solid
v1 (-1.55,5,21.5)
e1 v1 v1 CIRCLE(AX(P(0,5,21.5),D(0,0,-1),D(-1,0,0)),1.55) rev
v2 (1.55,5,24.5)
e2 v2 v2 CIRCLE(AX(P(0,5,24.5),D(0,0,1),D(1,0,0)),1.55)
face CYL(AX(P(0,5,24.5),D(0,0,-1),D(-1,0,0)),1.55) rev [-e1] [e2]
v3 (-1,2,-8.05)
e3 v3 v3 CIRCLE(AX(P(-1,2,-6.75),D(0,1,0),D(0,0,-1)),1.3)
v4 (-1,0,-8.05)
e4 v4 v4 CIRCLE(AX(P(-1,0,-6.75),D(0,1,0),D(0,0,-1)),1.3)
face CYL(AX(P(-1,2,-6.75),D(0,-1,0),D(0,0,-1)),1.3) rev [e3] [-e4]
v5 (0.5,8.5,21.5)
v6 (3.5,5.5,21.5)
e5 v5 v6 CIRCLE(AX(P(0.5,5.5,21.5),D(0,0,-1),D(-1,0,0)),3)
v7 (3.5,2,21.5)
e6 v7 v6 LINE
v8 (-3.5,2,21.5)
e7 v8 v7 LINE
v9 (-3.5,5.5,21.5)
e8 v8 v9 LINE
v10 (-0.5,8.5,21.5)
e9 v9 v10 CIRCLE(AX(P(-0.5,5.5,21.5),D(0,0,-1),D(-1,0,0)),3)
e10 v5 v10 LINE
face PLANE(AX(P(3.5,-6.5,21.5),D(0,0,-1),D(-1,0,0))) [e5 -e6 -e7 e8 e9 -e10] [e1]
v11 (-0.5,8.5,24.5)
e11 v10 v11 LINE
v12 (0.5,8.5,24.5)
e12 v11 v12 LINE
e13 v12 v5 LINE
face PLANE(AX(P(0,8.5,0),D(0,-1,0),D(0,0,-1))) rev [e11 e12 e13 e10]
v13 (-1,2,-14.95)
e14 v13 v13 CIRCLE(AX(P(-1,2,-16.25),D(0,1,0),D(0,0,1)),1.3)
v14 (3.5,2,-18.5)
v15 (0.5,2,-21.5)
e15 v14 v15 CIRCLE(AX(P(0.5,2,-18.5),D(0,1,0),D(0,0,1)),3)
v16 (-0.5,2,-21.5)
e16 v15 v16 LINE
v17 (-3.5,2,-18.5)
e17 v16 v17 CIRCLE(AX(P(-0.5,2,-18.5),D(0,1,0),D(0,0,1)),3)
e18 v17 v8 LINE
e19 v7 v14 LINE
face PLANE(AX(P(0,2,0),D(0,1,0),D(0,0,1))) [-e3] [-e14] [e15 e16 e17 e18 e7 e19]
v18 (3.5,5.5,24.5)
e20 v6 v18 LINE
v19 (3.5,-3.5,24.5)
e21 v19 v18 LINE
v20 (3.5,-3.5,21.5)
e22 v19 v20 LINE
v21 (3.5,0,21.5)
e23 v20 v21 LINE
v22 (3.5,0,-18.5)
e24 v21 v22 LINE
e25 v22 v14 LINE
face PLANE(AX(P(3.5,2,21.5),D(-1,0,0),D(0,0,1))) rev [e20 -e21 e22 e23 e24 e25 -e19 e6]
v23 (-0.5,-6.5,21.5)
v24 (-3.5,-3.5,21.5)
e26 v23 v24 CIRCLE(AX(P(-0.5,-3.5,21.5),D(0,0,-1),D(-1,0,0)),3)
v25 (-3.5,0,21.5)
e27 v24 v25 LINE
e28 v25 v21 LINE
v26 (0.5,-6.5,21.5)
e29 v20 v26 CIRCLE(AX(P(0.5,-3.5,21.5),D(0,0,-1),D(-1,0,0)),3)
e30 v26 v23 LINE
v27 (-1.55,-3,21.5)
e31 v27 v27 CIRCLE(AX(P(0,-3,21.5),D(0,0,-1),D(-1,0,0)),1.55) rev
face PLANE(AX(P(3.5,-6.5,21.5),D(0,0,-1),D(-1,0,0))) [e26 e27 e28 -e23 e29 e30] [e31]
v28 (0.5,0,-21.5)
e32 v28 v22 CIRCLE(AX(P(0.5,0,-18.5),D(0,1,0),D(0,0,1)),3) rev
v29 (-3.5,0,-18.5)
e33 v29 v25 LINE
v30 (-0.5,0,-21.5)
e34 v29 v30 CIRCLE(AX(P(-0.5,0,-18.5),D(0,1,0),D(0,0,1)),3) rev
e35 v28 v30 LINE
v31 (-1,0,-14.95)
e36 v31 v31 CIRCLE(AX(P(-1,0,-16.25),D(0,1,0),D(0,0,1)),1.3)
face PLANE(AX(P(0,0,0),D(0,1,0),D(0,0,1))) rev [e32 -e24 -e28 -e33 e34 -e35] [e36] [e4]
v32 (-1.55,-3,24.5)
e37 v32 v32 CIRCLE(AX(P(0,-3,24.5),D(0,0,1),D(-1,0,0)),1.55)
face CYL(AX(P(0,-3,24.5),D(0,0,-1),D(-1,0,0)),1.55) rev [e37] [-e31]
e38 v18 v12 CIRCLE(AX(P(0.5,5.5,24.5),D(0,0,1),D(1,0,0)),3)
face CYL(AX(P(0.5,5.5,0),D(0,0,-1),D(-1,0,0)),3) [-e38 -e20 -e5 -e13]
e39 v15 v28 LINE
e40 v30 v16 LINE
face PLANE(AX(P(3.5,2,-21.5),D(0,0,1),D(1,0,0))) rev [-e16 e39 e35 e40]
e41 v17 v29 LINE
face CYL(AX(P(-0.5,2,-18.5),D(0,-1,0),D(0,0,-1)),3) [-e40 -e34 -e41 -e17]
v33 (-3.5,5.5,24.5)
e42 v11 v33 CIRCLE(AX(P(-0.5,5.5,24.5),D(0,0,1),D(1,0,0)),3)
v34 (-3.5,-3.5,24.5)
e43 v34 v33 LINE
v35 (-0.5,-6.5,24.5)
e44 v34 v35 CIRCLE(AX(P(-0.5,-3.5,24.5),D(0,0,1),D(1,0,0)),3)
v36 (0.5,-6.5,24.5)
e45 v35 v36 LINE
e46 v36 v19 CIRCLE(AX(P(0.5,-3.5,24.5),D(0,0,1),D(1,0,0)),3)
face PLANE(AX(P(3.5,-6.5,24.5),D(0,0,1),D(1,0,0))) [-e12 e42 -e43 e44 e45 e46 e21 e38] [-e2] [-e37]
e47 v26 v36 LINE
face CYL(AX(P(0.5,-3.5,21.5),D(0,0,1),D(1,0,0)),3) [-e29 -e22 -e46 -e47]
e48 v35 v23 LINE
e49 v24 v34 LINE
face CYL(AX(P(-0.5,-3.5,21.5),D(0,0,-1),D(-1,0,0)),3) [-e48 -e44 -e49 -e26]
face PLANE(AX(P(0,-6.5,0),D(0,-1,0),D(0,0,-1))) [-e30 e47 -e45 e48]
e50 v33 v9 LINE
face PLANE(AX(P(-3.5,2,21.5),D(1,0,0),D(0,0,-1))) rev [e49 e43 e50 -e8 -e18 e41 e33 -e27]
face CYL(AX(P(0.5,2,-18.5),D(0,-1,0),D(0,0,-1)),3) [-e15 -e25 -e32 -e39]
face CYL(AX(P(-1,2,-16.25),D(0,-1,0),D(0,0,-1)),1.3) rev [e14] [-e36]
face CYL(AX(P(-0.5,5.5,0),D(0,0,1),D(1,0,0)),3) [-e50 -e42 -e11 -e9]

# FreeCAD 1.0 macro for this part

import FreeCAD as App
import Part
import Sketcher
from FreeCAD import Vector


def edges_at(feature, points):
    """Names of the edges that pass closest to the given points."""
    edges = feature.Shape.Edges
    near = lambda p: min(range(len(edges)), key=lambda i: edges[i].distToShape(Part.Vertex(*p))[0])
    return sorted({f"Edge{near(p) + 1}" for p in points})

doc = App.newDocument("Part")
params = doc.addObject("Spreadsheet::Sheet", "Params")
for row, (alias, value) in enumerate([
    ("sketch1_diameter", "2.6 mm"),
    ("sketch1_width", "7 mm"),
    ("sketch1_height", "43 mm"),
    ("pad1_length", "2 mm"),
    ("sketch2_width", "7 mm"),
    ("sketch2_height", "3 mm"),
    ("pad2_length", "8.5 mm"),
    ("pad2_length2", "6.5 mm"),
    ("sketch3_diameter", "3.1 mm"),
    ("fillet_radius", "3 mm"),
    ("fillet2_radius", "3 mm"),
], start=1):
    params.set(f"A{row}", alias)
    params.set(f"B{row}", "=" + value)
    params.setAlias(f"B{row}", alias)

body = doc.addObject("PartDesign::Body", "Body")

sketch1 = body.newObject("Sketcher::SketchObject", "Sketch")
sketch1.AttachmentSupport = (doc.getObject("XZ_Plane"), [""])
sketch1.MapMode = "FlatFace"
sketch1.addGeometry(Part.LineSegment(Vector(-3.5, -21.5, 0), Vector(-3.5, 21.5, 0)), False)
sketch1.addGeometry(Part.LineSegment(Vector(-3.5, 21.5, 0), Vector(3.5, 21.5, 0)), False)
sketch1.addGeometry(Part.LineSegment(Vector(3.5, 21.5, 0), Vector(3.5, -21.5, 0)), False)
sketch1.addGeometry(Part.LineSegment(Vector(3.5, -21.5, 0), Vector(-3.5, -21.5, 0)), False)
sketch1.addGeometry(Part.Circle(Vector(-1, -6.8, 0), Vector(0, 0, 1), 1.3), False)
sketch1.addGeometry(Part.Circle(Vector(-1, -16.2, 0), Vector(0, 0, 1), 1.3), False)
sketch1.addConstraint(Sketcher.Constraint("Coincident", 0, 2, 1, 1))
sketch1.addConstraint(Sketcher.Constraint("Coincident", 1, 2, 2, 1))
sketch1.addConstraint(Sketcher.Constraint("Coincident", 2, 2, 3, 1))
sketch1.addConstraint(Sketcher.Constraint("Coincident", 3, 2, 0, 1))
sketch1.addConstraint(Sketcher.Constraint("Vertical", 0))
sketch1.addConstraint(Sketcher.Constraint("Horizontal", 1))
sketch1.addConstraint(Sketcher.Constraint("Vertical", 2))
sketch1.addConstraint(Sketcher.Constraint("Horizontal", 3))
sketch1.addConstraint(Sketcher.Constraint("Equal", 4, 5))
sketch1.addConstraint(Sketcher.Constraint("Symmetric", 0, 2, 2, 2, -1, 1))
sketch1.addConstraint(Sketcher.Constraint("Vertical", 4, 3, 5, 3))
sketch1.addConstraint(Sketcher.Constraint("Diameter", 4, 2.6))
sketch1.addConstraint(Sketcher.Constraint("DistanceX", 1, 1, 1, 2, 7.0))
sketch1.addConstraint(Sketcher.Constraint("DistanceY", 0, 1, 0, 2, 43.0))
sketch1.addConstraint(Sketcher.Constraint("DistanceX", 4, 3, -1, 1, 1.0))
sketch1.addConstraint(Sketcher.Constraint("DistanceY", 5, 3, 4, 3, 9.5))
sketch1.addConstraint(Sketcher.Constraint("DistanceY", 4, 3, -1, 1, 6.75))
sketch1.setExpression("Constraints[11]", "Params.sketch1_diameter")
sketch1.setExpression("Constraints[12]", "Params.sketch1_width")
sketch1.setExpression("Constraints[13]", "Params.sketch1_height")
pad1 = body.newObject("PartDesign::Pad", "Pad")
pad1.Profile = sketch1
pad1.setExpression("Length", "Params.pad1_length")
pad1.Reversed = True

sketch2 = body.newObject("Sketcher::SketchObject", "Sketch001")
sketch2.AttachmentSupport = (doc.getObject("XZ_Plane"), [""])
sketch2.MapMode = "FlatFace"
sketch2.addGeometry(Part.LineSegment(Vector(-3.5, 21.5, 0), Vector(-3.5, 24.5, 0)), False)
sketch2.addGeometry(Part.LineSegment(Vector(-3.5, 24.5, 0), Vector(3.5, 24.5, 0)), False)
sketch2.addGeometry(Part.LineSegment(Vector(3.5, 24.5, 0), Vector(3.5, 21.5, 0)), False)
sketch2.addGeometry(Part.LineSegment(Vector(3.5, 21.5, 0), Vector(-3.5, 21.5, 0)), False)
sketch2.addConstraint(Sketcher.Constraint("Coincident", 0, 2, 1, 1))
sketch2.addConstraint(Sketcher.Constraint("Coincident", 1, 2, 2, 1))
sketch2.addConstraint(Sketcher.Constraint("Coincident", 2, 2, 3, 1))
sketch2.addConstraint(Sketcher.Constraint("Coincident", 3, 2, 0, 1))
sketch2.addConstraint(Sketcher.Constraint("Vertical", 0))
sketch2.addConstraint(Sketcher.Constraint("Horizontal", 1))
sketch2.addConstraint(Sketcher.Constraint("Vertical", 2))
sketch2.addConstraint(Sketcher.Constraint("Horizontal", 3))
sketch2.addConstraint(Sketcher.Constraint("DistanceX", 1, 1, 1, 2, 7.0))
sketch2.addConstraint(Sketcher.Constraint("DistanceY", 0, 1, 0, 2, 3.0))
sketch2.addConstraint(Sketcher.Constraint("DistanceX", 0, 2, -1, 1, 3.5))
sketch2.addConstraint(Sketcher.Constraint("DistanceY", -1, 1, 0, 2, 24.5))
sketch2.setExpression("Constraints[8]", "Params.sketch2_width")
sketch2.setExpression("Constraints[9]", "Params.sketch2_height")
pad2 = body.newObject("PartDesign::Pad", "Pad001")
pad2.Profile = sketch2
pad2.Type = "TwoLengths"
pad2.setExpression("Length", "Params.pad2_length")
pad2.setExpression("Length2", "Params.pad2_length2")
pad2.Reversed = True

sketch3 = body.newObject("Sketcher::SketchObject", "Sketch002")
sketch3.AttachmentSupport = (doc.getObject("XY_Plane"), [""])
sketch3.MapMode = "FlatFace"
sketch3.addGeometry(Part.Circle(Vector(0, 5, 0), Vector(0, 0, 1), 1.6), False)
sketch3.addGeometry(Part.Circle(Vector(0, -3, 0), Vector(0, 0, 1), 1.6), False)
sketch3.addConstraint(Sketcher.Constraint("Equal", 0, 1))
sketch3.addConstraint(Sketcher.Constraint("PointOnObject", 0, 3, -2))
sketch3.addConstraint(Sketcher.Constraint("PointOnObject", 1, 3, -2))
sketch3.addConstraint(Sketcher.Constraint("Diameter", 0, 3.1))
sketch3.addConstraint(Sketcher.Constraint("DistanceY", -1, 1, 0, 3, 5.0))
sketch3.addConstraint(Sketcher.Constraint("DistanceY", 1, 3, -1, 1, 3.0))
sketch3.setExpression("Constraints[3]", "Params.sketch3_diameter")
pocket1 = body.newObject("PartDesign::Pocket", "Pocket")
pocket1.Profile = sketch3
pocket1.Type = "ThroughAll"
pocket1.Reversed = True
doc.recompute()

fillet = body.newObject("PartDesign::Fillet", "Fillet")
fillet.Base = (pocket1, edges_at(pocket1, [(-3.5, 1, -21.5), (3.5, 1, -21.5)]))
fillet.setExpression("Radius", "Params.fillet_radius")
doc.recompute()

fillet2 = body.newObject("PartDesign::Fillet", "Fillet001")
fillet2.Base = (fillet, edges_at(fillet, [
    (3.5, -6.5, 23),
    (-3.5, -6.5, 23),
    (3.5, 8.5, 23),
    (-3.5, 8.5, 23),
]))
fillet2.setExpression("Radius", "Params.fillet2_radius")

doc.recompute()
